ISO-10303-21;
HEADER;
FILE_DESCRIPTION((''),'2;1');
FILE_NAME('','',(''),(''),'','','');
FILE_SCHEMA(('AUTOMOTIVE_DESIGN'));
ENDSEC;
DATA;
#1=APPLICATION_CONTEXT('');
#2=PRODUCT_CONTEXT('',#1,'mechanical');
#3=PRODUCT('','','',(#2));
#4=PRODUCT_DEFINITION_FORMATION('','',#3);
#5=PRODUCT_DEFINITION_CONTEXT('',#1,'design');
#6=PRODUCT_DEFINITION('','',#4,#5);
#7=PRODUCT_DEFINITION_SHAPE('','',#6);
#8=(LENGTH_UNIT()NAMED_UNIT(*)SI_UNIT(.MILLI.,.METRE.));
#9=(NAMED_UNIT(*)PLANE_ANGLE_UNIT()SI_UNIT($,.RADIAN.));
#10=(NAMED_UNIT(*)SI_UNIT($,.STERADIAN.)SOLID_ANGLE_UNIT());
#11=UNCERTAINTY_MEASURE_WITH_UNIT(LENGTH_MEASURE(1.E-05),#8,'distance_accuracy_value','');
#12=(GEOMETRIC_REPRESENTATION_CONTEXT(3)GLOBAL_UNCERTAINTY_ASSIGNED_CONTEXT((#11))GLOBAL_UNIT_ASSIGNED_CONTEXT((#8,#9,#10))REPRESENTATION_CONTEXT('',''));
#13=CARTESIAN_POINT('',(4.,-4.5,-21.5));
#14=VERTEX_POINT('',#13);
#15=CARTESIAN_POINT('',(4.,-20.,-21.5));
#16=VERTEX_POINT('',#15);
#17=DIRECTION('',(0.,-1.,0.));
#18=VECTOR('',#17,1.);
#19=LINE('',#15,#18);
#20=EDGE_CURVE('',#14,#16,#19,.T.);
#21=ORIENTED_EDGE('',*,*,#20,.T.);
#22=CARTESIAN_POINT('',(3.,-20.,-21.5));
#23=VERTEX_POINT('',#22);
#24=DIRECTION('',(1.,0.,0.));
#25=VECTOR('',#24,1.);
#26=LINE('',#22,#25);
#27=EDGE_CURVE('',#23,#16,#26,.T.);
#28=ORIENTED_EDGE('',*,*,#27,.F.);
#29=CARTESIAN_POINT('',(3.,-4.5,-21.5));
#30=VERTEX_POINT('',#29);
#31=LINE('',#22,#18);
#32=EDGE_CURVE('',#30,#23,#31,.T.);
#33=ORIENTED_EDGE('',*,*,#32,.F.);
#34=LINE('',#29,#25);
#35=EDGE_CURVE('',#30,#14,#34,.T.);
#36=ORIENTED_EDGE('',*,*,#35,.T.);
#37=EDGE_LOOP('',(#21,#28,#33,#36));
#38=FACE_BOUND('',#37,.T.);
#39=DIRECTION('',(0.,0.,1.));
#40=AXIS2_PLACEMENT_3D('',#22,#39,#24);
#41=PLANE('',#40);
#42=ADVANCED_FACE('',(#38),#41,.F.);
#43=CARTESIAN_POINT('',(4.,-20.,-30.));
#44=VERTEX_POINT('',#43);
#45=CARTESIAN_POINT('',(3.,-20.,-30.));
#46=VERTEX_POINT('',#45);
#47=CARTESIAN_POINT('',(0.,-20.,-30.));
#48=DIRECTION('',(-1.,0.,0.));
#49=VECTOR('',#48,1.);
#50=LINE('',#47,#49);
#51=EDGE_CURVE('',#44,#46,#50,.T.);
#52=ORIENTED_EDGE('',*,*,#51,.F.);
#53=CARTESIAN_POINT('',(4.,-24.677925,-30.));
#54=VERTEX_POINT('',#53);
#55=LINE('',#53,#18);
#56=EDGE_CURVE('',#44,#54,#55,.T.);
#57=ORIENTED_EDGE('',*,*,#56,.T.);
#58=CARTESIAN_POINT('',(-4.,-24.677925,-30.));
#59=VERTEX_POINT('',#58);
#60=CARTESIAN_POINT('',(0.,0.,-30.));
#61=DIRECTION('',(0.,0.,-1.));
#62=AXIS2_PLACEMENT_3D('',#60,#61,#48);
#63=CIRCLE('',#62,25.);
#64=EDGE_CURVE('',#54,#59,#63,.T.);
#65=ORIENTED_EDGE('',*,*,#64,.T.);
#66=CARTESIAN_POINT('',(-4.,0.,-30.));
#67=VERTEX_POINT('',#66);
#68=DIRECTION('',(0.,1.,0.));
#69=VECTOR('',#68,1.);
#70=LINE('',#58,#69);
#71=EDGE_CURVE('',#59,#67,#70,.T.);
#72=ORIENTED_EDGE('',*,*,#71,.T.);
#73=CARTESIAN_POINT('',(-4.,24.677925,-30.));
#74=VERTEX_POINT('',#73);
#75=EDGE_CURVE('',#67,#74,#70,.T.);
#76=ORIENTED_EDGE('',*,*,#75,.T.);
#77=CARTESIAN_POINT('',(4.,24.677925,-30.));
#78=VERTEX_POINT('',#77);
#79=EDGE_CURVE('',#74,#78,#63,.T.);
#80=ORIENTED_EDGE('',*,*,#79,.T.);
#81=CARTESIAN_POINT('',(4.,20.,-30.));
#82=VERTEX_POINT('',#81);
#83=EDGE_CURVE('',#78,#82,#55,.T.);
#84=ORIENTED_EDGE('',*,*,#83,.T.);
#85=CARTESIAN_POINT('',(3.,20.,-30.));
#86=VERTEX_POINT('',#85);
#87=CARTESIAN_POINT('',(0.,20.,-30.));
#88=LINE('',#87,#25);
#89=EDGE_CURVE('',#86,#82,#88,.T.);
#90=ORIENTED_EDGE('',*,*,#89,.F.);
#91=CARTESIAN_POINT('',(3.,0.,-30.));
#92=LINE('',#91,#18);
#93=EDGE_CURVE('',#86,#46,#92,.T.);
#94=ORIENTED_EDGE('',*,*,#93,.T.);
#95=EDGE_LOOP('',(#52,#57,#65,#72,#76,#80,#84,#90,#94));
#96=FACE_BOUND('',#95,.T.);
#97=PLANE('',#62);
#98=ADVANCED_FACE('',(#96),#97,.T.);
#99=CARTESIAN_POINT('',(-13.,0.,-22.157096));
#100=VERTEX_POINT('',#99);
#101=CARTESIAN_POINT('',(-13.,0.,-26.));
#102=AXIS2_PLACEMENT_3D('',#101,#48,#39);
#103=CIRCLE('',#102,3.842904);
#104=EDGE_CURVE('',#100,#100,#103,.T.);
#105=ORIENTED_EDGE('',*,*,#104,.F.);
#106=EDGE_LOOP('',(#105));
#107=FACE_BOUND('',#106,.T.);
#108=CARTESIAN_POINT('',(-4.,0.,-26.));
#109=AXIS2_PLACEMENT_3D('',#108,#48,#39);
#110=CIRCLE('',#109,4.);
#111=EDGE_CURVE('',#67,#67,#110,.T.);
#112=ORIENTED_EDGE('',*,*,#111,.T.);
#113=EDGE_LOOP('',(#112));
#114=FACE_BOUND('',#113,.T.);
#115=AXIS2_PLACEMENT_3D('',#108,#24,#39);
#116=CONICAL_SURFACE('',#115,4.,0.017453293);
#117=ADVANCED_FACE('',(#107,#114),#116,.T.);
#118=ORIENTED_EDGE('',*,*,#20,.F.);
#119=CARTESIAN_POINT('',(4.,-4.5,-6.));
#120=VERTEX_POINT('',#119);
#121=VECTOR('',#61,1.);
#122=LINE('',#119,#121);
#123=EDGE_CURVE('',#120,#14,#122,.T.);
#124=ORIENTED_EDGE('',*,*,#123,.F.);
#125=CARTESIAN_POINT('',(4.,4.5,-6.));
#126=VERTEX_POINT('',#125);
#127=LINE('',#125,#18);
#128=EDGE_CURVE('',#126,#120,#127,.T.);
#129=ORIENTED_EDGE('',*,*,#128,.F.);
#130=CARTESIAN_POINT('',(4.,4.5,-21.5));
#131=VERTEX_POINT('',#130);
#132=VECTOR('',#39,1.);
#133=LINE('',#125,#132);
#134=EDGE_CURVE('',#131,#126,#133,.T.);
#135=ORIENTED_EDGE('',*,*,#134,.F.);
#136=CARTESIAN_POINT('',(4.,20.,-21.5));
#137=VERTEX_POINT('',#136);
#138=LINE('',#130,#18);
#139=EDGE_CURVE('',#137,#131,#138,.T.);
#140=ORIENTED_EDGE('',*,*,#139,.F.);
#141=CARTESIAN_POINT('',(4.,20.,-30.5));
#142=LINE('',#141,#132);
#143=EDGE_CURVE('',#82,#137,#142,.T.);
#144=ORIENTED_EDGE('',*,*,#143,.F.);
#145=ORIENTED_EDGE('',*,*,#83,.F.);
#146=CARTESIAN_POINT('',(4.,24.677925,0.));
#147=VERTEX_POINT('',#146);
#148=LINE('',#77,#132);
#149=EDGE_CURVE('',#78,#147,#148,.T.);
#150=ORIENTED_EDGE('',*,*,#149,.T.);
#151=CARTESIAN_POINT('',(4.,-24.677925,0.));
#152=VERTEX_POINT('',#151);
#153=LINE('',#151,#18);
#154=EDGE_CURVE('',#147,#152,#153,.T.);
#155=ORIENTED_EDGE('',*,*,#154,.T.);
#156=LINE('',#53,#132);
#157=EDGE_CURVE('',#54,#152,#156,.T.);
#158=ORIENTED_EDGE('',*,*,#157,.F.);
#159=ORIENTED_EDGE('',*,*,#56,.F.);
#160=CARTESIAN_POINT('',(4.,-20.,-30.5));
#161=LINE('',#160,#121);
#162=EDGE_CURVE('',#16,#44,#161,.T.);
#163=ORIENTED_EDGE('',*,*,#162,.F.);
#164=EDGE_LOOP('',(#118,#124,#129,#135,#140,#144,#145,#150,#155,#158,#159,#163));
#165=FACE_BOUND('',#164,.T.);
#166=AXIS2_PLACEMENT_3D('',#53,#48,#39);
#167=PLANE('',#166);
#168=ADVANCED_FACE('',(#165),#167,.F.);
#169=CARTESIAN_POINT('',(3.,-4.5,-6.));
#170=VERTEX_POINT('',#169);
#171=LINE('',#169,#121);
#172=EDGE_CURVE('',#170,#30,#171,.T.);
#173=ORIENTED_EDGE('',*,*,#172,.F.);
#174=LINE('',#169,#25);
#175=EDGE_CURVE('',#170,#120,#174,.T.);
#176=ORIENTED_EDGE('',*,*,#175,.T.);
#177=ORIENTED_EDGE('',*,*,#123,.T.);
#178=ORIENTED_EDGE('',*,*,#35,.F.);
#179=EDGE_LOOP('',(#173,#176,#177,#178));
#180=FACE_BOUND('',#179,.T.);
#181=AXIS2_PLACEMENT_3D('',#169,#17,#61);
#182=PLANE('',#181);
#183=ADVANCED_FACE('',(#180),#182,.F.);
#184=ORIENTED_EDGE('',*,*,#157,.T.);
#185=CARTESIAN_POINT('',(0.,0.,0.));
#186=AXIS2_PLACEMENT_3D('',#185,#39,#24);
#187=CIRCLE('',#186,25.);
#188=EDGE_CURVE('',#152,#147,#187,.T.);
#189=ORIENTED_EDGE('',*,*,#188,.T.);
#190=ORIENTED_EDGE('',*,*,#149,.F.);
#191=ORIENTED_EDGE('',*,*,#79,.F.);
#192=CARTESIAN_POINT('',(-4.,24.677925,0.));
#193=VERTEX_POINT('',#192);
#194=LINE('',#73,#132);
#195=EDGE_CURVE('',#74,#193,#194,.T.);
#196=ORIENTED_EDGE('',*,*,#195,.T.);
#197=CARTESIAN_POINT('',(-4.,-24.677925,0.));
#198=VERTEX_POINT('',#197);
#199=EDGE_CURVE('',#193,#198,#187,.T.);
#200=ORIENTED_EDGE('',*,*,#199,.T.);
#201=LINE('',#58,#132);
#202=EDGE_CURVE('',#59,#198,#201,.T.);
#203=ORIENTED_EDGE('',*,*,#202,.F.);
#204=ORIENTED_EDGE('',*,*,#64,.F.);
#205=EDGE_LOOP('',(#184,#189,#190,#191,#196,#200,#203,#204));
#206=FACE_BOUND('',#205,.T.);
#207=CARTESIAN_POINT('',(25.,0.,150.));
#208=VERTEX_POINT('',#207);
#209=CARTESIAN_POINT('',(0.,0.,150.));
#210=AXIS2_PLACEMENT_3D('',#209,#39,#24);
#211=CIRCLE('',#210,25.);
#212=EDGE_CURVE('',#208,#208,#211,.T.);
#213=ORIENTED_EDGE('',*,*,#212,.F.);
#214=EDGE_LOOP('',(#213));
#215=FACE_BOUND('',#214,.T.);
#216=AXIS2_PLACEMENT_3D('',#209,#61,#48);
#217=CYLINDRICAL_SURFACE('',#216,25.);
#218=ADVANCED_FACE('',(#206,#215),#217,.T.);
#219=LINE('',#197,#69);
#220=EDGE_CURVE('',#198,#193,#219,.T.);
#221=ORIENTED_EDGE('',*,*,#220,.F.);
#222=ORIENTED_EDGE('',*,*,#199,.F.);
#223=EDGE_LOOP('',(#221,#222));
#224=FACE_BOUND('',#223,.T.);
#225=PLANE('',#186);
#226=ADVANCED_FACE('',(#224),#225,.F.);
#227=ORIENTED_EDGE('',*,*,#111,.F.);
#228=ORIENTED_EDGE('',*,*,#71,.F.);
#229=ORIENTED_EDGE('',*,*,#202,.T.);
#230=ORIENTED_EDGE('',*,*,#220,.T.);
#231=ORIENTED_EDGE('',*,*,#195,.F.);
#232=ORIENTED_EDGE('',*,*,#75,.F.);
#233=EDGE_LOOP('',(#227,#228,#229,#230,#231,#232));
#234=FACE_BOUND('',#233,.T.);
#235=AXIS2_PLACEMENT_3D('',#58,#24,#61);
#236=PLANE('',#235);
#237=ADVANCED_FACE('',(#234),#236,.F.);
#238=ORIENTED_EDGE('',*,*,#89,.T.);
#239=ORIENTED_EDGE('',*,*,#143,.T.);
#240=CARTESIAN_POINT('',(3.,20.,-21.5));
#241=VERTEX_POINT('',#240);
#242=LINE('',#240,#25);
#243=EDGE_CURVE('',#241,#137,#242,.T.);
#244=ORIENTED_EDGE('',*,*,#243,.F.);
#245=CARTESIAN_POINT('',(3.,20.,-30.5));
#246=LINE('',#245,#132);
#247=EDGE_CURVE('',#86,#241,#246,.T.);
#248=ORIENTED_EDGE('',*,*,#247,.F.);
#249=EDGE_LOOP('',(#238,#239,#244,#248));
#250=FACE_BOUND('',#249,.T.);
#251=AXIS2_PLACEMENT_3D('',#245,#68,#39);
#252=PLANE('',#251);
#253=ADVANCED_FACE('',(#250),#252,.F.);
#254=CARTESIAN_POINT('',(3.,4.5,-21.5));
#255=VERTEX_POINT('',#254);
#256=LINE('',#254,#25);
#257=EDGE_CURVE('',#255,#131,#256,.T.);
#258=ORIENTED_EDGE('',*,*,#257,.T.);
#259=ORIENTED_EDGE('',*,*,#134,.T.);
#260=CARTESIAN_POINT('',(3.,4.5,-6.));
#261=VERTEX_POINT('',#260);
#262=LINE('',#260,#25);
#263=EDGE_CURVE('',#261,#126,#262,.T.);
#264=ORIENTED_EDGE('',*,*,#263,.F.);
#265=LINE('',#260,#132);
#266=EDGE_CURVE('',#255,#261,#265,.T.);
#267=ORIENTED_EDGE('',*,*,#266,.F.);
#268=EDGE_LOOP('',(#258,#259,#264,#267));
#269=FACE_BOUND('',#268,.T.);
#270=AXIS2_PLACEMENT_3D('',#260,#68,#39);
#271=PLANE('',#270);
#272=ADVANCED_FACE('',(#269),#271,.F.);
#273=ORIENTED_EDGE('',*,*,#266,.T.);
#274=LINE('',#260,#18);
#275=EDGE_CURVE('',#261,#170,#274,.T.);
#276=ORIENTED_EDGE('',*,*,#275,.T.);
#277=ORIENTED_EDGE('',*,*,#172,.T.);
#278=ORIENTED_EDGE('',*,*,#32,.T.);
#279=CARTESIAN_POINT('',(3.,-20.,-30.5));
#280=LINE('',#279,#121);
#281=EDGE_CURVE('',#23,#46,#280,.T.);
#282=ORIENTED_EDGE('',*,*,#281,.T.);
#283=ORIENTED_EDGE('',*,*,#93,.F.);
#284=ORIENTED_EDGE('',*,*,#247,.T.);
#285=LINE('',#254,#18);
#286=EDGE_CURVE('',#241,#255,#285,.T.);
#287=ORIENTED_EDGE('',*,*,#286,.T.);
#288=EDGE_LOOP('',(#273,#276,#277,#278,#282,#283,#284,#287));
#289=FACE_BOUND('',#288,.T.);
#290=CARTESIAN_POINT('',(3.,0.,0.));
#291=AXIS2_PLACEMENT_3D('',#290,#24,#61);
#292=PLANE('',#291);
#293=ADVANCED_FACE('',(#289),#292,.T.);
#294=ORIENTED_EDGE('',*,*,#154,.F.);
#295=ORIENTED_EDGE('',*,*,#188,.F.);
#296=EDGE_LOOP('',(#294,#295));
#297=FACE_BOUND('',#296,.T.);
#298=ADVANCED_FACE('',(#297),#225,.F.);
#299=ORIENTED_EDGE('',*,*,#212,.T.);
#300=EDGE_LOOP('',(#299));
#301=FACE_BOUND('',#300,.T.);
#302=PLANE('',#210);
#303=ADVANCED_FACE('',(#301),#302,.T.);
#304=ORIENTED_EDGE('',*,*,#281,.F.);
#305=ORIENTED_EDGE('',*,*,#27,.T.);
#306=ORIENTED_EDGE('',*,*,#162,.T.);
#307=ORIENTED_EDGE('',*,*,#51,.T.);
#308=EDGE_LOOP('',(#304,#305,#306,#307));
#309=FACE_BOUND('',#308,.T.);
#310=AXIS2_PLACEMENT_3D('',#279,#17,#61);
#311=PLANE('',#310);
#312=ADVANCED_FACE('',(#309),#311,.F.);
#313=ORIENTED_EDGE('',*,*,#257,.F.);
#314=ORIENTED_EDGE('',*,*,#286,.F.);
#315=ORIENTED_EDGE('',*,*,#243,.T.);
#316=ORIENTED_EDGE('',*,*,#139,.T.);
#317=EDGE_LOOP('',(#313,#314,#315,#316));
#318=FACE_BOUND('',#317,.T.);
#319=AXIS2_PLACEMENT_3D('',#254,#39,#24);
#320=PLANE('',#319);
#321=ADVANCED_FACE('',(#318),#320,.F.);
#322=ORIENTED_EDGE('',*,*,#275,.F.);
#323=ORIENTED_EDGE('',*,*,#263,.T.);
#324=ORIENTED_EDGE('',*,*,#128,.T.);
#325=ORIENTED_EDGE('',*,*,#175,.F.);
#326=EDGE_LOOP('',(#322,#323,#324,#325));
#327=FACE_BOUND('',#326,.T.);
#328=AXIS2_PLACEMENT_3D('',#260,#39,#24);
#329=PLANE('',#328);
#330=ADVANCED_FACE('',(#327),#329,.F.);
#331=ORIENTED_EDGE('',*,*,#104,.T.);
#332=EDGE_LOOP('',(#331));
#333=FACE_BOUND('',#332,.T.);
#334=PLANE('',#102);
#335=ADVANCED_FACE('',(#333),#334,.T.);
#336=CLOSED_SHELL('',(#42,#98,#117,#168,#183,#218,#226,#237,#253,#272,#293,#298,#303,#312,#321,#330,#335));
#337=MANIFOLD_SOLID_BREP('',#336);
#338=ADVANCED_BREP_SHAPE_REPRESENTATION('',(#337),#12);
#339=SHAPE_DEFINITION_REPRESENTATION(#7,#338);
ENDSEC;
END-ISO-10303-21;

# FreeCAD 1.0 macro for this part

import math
import FreeCAD as App
import Part
import Sketcher
from FreeCAD import Vector
Q = App.Units.Quantity

doc = App.newDocument("Part")
body = doc.addObject("PartDesign::Body", "Body")

sketch1 = body.newObject("Sketcher::SketchObject", "Sketch")
sketch1.AttachmentSupport = (doc.getObject("XY_Plane"), [""])
sketch1.MapMode = "FlatFace"
sketch1.addGeometry(Part.Circle(Vector(0, 0, 0), Vector(0, 0, 1), 25), False)
sketch1.addConstraint([
    Sketcher.Constraint("Coincident", 0, 3, -1, 1),
    Sketcher.Constraint("Diameter", 0, Q("50 mm")),
])
pad1 = body.newObject("PartDesign::Pad", "Pad")
pad1.Profile = sketch1
pad1.Length = 150

sketch2 = body.newObject("Sketcher::SketchObject", "Sketch001")
sketch2.AttachmentSupport = (doc.getObject("XY_Plane"), [""])
sketch2.MapMode = "FlatFace"
sketch2.AttachmentOffset = App.Placement(Vector(0, 0, -30), App.Rotation())
sketch2.addGeometry([
    Part.LineSegment(Vector(4, 24.677925, 0), Vector(4, -24.677925, 0)),
    Part.ArcOfCircle(Part.Circle(Vector(0, 0, 0), Vector(0, 0, 1), 25), math.radians(-99.206896), math.radians(-80.793104)),
    Part.LineSegment(Vector(-4, -24.677925, 0), Vector(-4, 24.677925, 0)),
    Part.ArcOfCircle(Part.Circle(Vector(0, 0, 0), Vector(0, 0, 1), 25), math.radians(80.793104), math.radians(99.206896)),
], False)
sketch2.addConstraint([
    Sketcher.Constraint("Coincident", 0, 2, 1, 2),
    Sketcher.Constraint("Coincident", 1, 1, 2, 1),
    Sketcher.Constraint("Coincident", 2, 2, 3, 2),
    Sketcher.Constraint("Coincident", 3, 1, 0, 1),
    Sketcher.Constraint("Vertical", 0),
    Sketcher.Constraint("Vertical", 2),
    Sketcher.Constraint("Coincident", 1, 3, -1, 1),
    Sketcher.Constraint("Coincident", 3, 3, -1, 1),
    Sketcher.Constraint("Equal", 1, 3),
    Sketcher.Constraint("Horizontal", 0, 2, 1, 1),
    Sketcher.Constraint("Radius", 1, Q("25 mm")),
    Sketcher.Constraint("DistanceX", -1, 1, 0, 2, Q("4 mm")),
])
pad2 = body.newObject("PartDesign::Pad", "Pad001")
pad2.Profile = sketch2
pad2.Length = 30

sketch3 = body.newObject("Sketcher::SketchObject", "Sketch002")
sketch3.AttachmentSupport = (doc.getObject("YZ_Plane"), [""])
sketch3.MapMode = "FlatFace"
sketch3.AttachmentOffset = App.Placement(Vector(0, 0, -4), App.Rotation())
sketch3.addGeometry(Part.Circle(Vector(0, -26, 0), Vector(0, 0, 1), 4), False)
sketch3.addConstraint([
    Sketcher.Constraint("PointOnObject", 0, 3, -2),
    Sketcher.Constraint("Diameter", 0, Q("8 mm")),
    Sketcher.Constraint("DistanceY", 0, 3, -1, 1, Q("26 mm")),
])
pad3 = body.newObject("PartDesign::Pad", "Pad002")
pad3.Profile = sketch3
pad3.Length = 9
pad3.Reversed = True
pad3.TaperAngle = -1

sketch4 = body.newObject("Sketcher::SketchObject", "Sketch003")
sketch4.AttachmentSupport = (doc.getObject("YZ_Plane"), [""])
sketch4.MapMode = "FlatFace"
sketch4.AttachmentOffset = App.Placement(Vector(0, 0, 4), App.Rotation())
sketch4.addGeometry([
    Part.LineSegment(Vector(20, -21.5, 0), Vector(4.5, -21.5, 0)),
    Part.LineSegment(Vector(4.5, -21.5, 0), Vector(4.5, -6, 0)),
    Part.LineSegment(Vector(4.5, -6, 0), Vector(-4.5, -6, 0)),
    Part.LineSegment(Vector(-4.5, -6, 0), Vector(-4.5, -21.5, 0)),
    Part.LineSegment(Vector(-4.5, -21.5, 0), Vector(-20, -21.5, 0)),
    Part.LineSegment(Vector(-20, -21.5, 0), Vector(-20, -30.5, 0)),
    Part.LineSegment(Vector(-20, -30.5, 0), Vector(-4.5, -30.5, 0)),
    Part.LineSegment(Vector(-4.5, -30.5, 0), Vector(-4.5, -30, 0)),
    Part.LineSegment(Vector(-4.5, -30, 0), Vector(4.5, -30, 0)),
    Part.LineSegment(Vector(4.5, -30, 0), Vector(4.5, -30.5, 0)),
    Part.LineSegment(Vector(4.5, -30.5, 0), Vector(20, -30.5, 0)),
    Part.LineSegment(Vector(20, -30.5, 0), Vector(20, -21.5, 0)),
], False)
sketch4.addConstraint([
    Sketcher.Constraint("Coincident", 0, 2, 1, 1),
    Sketcher.Constraint("Coincident", 1, 2, 2, 1),
    Sketcher.Constraint("Coincident", 2, 2, 3, 1),
    Sketcher.Constraint("Coincident", 3, 2, 4, 1),
    Sketcher.Constraint("Coincident", 4, 2, 5, 1),
    Sketcher.Constraint("Coincident", 5, 2, 6, 1),
    Sketcher.Constraint("Coincident", 6, 2, 7, 1),
    Sketcher.Constraint("Coincident", 7, 2, 8, 1),
    Sketcher.Constraint("Coincident", 8, 2, 9, 1),
    Sketcher.Constraint("Coincident", 9, 2, 10, 1),
    Sketcher.Constraint("Coincident", 10, 2, 11, 1),
    Sketcher.Constraint("Coincident", 11, 2, 0, 1),
    Sketcher.Constraint("Horizontal", 0),
    Sketcher.Constraint("Vertical", 1),
    Sketcher.Constraint("Horizontal", 2),
    Sketcher.Constraint("Vertical", 3),
    Sketcher.Constraint("Horizontal", 4),
    Sketcher.Constraint("Vertical", 5),
    Sketcher.Constraint("Horizontal", 6),
    Sketcher.Constraint("Vertical", 7),
    Sketcher.Constraint("Horizontal", 8),
    Sketcher.Constraint("Vertical", 9),
    Sketcher.Constraint("Horizontal", 10),
    Sketcher.Constraint("Vertical", 11),
    Sketcher.Constraint("Symmetric", 0, 2, 3, 2, -2),
    Sketcher.Constraint("Symmetric", 6, 2, 9, 2, -2),
    Sketcher.Constraint("Vertical", 3, 2, 6, 2),
    Sketcher.Constraint("Equal", 0, 4),
    Sketcher.Constraint("Equal", 10, 1),
    Sketcher.Constraint("Equal", 8, 5),
    Sketcher.Constraint("DistanceX", 2, 2, 2, 1, Q("9 mm")),
    Sketcher.Constraint("DistanceX", 0, 2, 0, 1, Q("15.5 mm")),
    Sketcher.Constraint("DistanceY", 7, 1, 7, 2, Q("0.5 mm")),
    Sketcher.Constraint("DistanceY", 1, 2, -1, 1, Q("6 mm")),
])
pocket1 = body.newObject("PartDesign::Pocket", "Pocket")
pocket1.Profile = sketch4
pocket1.Length = 1

doc.recompute()
